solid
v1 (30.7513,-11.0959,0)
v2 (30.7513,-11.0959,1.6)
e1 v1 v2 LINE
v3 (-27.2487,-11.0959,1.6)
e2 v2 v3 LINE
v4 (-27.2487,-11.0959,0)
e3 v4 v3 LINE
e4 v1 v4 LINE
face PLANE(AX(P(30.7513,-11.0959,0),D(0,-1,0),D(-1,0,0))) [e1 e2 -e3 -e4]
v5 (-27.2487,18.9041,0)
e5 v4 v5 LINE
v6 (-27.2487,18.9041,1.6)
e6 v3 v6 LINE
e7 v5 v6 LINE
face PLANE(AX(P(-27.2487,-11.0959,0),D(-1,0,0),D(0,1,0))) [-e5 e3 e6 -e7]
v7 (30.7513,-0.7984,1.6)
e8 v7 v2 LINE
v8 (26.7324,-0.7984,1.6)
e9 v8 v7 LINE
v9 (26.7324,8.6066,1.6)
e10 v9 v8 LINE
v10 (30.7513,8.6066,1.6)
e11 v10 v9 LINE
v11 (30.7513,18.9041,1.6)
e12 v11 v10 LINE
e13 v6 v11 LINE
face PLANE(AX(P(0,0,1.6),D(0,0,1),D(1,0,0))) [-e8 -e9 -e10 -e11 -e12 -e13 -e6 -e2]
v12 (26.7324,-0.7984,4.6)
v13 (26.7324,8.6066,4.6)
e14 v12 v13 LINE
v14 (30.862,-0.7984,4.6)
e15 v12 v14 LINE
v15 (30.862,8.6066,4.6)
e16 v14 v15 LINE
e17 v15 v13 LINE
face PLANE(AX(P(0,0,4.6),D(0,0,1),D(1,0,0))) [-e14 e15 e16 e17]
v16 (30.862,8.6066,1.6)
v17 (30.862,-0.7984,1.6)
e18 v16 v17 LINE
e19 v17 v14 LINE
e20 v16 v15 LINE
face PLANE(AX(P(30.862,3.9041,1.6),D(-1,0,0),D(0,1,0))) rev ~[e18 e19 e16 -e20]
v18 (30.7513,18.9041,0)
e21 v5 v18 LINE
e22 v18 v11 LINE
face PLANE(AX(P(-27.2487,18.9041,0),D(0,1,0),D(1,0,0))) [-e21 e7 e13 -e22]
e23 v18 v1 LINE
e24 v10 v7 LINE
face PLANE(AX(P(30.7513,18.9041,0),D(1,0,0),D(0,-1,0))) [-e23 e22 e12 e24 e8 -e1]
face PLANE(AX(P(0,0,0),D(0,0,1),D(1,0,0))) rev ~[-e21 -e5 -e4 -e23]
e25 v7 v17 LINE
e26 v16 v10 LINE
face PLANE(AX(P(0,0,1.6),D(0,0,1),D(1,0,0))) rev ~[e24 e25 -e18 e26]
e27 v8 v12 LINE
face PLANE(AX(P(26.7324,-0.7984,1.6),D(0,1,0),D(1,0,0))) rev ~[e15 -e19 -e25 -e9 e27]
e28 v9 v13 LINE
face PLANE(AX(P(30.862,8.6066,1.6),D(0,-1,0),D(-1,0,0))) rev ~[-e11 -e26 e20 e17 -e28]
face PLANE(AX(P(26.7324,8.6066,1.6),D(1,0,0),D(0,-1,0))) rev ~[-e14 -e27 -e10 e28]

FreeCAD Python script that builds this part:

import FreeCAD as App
import Part
import Sketcher
from FreeCAD import Vector


def add_polygon(sketch, points):
    """Adds a closed chain of lines whose ends are joined by coincident constraints."""
    first, n = sketch.GeometryCount, len(points)
    for a, b in zip(points, points[1:] + points[:1]):
        sketch.addGeometry(Part.LineSegment(App.Vector(*a, 0), App.Vector(*b, 0)), False)
    for i in range(n):
        sketch.addConstraint(Sketcher.Constraint("Coincident", first + i, 2, first + (i + 1) % n, 1))

doc = App.newDocument("Part")
body = doc.addObject("PartDesign::Body", "Body")

# Sketch on XY plane
sketch1 = body.newObject("Sketcher::SketchObject", "Sketch")
sketch1.AttachmentSupport = (doc.getObject("XY_Plane"), [""])
sketch1.MapMode = "FlatFace"
add_polygon(sketch1, [(31, 19), (-27, 19), (-27, -11), (31, -11)])  # lines 0-3
sketch1.addConstraint([
    Sketcher.Constraint("Horizontal", 0),
    Sketcher.Constraint("Vertical", 1),
    Sketcher.Constraint("Horizontal", 2),
    Sketcher.Constraint("Vertical", 3),
    Sketcher.Constraint("DistanceX", 0, 2, 0, 1, 58.0),
    Sketcher.Constraint("DistanceY", 1, 2, 1, 1, 30.0),
    Sketcher.Constraint("DistanceY", -1, 1, 0, 2, 18.904),
    Sketcher.Constraint("DistanceX", 0, 2, -1, 1, 27.2487),
])
pad1 = body.newObject("PartDesign::Pad", "Pad")
pad1.Profile = sketch1
pad1.Length = 1.6

# Sketch on XY plane
sketch2 = body.newObject("Sketcher::SketchObject", "Sketch001")
sketch2.AttachmentSupport = (doc.getObject("XY_Plane"), [""])
sketch2.MapMode = "FlatFace"
sketch2.AttachmentOffset = App.Placement(Vector(0, 0, 1.6), App.Rotation())
add_polygon(sketch2, [(26.7, 8.6), (26.7, -0.8), (30.9, -0.8), (30.9, 8.6)])  # lines 0-3
sketch2.addConstraint([
    Sketcher.Constraint("Vertical", 0),
    Sketcher.Constraint("Horizontal", 1),
    Sketcher.Constraint("Vertical", 2),
    Sketcher.Constraint("Horizontal", 3),
    Sketcher.Constraint("DistanceY", 0, 2, 0, 1, 9.405),
    Sketcher.Constraint("DistanceX", 1, 1, 1, 2, 4.1296),
    Sketcher.Constraint("DistanceX", -1, 1, 1, 2, 30.862),
    Sketcher.Constraint("DistanceY", 0, 2, -1, 1, 0.7984),
])
pad2 = body.newObject("PartDesign::Pad", "Pad001")
pad2.Profile = sketch2
pad2.Length = 3

doc.recompute()
